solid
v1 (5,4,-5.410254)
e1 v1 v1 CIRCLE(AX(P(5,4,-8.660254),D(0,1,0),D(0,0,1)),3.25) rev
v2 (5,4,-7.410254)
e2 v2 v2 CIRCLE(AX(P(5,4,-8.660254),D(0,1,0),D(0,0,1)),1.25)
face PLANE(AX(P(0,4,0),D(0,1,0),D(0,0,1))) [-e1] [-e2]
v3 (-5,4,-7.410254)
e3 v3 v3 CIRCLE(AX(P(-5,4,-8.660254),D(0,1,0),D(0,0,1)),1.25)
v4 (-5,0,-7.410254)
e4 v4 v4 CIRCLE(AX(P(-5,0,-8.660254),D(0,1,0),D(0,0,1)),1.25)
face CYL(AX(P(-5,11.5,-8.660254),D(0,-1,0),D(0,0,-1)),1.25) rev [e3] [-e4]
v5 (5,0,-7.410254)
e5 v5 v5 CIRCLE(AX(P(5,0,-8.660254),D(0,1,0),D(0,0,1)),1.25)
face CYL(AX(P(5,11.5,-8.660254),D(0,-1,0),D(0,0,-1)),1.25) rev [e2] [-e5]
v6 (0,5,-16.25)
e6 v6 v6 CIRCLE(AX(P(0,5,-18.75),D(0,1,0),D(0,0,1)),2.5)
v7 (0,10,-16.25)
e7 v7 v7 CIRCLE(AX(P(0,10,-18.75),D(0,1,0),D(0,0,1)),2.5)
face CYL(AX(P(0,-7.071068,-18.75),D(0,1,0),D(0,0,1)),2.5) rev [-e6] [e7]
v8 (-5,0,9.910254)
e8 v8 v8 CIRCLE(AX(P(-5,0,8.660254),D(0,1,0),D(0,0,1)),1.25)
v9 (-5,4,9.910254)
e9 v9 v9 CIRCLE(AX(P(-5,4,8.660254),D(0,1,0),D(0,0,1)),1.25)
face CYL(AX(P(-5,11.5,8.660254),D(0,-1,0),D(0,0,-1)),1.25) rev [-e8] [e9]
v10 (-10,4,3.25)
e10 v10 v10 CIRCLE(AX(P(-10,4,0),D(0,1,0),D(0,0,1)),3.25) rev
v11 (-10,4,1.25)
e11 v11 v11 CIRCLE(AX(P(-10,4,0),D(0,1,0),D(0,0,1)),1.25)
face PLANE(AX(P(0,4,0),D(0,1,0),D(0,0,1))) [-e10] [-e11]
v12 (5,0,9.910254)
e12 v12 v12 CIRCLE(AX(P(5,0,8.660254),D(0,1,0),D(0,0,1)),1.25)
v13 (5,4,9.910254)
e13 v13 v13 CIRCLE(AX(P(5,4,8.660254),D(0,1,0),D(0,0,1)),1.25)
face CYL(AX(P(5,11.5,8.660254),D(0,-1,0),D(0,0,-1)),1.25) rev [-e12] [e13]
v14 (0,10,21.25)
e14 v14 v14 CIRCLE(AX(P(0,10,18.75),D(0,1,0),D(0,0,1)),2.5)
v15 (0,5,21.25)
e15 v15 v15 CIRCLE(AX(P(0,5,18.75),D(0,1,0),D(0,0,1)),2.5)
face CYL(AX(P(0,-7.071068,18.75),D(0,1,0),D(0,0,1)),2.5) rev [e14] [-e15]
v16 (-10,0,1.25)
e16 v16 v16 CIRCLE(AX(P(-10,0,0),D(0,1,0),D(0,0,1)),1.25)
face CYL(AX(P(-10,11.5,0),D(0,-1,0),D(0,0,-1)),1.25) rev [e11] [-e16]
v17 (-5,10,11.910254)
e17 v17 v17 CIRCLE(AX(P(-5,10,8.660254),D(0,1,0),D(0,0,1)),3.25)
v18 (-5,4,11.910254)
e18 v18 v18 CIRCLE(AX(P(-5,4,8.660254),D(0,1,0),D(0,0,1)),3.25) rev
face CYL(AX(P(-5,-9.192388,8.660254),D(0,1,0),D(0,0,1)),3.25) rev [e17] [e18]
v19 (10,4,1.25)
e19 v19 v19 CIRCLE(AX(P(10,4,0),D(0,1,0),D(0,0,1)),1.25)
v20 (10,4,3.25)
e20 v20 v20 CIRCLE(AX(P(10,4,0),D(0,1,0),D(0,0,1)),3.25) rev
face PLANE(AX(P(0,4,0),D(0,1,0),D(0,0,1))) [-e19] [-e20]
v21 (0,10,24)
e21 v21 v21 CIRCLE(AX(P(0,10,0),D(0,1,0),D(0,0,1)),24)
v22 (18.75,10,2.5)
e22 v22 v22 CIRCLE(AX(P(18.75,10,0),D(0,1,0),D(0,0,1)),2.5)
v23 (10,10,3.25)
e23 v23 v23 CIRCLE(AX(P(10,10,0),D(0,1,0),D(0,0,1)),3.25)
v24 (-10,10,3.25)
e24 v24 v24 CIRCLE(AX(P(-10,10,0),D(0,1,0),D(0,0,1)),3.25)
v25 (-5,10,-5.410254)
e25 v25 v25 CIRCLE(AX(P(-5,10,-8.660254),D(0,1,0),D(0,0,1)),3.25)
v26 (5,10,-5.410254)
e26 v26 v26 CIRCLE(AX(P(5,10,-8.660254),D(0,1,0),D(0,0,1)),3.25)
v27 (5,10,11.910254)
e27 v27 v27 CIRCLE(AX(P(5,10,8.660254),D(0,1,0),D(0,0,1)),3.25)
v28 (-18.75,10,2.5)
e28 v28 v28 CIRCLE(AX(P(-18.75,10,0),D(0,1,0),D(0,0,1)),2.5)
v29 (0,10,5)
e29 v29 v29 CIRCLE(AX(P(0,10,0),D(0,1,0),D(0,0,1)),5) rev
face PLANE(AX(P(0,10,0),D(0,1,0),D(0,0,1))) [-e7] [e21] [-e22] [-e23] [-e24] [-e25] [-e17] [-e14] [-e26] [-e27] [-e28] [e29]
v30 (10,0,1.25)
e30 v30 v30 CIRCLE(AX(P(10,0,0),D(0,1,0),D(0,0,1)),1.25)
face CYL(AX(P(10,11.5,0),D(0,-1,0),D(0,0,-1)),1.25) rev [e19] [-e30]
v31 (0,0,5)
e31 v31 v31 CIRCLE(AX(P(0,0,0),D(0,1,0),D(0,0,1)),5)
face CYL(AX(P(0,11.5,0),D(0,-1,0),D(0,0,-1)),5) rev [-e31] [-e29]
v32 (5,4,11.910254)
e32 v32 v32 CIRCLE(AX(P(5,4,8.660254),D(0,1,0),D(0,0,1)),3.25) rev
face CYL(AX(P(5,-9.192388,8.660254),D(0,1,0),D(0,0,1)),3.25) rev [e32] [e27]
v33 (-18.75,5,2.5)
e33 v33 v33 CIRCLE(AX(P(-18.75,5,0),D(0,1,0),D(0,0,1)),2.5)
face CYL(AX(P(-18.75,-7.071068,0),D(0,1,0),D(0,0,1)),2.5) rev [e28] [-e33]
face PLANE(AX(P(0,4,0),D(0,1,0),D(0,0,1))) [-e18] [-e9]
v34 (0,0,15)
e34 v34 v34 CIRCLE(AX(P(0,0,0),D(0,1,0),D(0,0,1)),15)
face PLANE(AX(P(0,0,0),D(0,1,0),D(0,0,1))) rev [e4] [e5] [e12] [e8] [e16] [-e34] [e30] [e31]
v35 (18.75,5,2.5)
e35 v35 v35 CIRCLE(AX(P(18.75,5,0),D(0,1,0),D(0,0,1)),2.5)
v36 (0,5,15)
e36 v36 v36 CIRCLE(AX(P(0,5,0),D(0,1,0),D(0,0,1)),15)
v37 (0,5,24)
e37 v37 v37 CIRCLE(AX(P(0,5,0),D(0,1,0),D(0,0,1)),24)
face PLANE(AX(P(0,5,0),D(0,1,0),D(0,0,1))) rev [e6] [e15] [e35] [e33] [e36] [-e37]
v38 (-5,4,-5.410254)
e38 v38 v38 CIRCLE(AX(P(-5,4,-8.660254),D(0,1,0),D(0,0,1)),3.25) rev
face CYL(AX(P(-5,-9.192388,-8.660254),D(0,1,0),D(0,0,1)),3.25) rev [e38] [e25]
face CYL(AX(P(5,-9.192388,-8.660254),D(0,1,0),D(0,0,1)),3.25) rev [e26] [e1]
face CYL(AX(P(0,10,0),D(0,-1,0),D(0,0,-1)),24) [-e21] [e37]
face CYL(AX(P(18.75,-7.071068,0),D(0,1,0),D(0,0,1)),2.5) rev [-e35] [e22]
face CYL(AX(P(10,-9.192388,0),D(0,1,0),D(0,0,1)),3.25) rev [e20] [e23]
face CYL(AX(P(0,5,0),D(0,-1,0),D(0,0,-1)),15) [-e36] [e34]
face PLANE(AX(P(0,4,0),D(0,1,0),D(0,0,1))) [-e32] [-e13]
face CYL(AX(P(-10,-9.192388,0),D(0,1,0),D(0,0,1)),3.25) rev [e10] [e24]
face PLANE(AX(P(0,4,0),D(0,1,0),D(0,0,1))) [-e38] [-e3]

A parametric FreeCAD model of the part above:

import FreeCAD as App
import Part
import Sketcher
Q = App.Units.Quantity

doc = App.newDocument("Part")
body = doc.addObject("PartDesign::Body", "Body")

# Sketch on XZ plane
sketch1 = body.newObject("Sketcher::SketchObject", "Sketch")
sketch1.AttachmentSupport = (doc.getObject("XZ_Plane"), [""])
sketch1.MapMode = "FlatFace"
sketch1.addGeometry(Part.Circle(App.Vector(0, 0, 0), App.Vector(0, 0, 1), 15), False)
sketch1.addConstraint(Sketcher.Constraint("Coincident", 0, 3, -1, 1))
sketch1.addConstraint(Sketcher.Constraint("Diameter", 0, Q("30 mm")))
pad1 = body.newObject("PartDesign::Pad", "Pad")
pad1.Profile = sketch1
pad1.Length = 5
pad1.Reversed = True

# Sketch on XZ plane
sketch2 = body.newObject("Sketcher::SketchObject", "Sketch001")
sketch2.AttachmentSupport = (doc.getObject("XZ_Plane"), [""])
sketch2.MapMode = "FlatFace"
sketch2.AttachmentOffset = App.Placement(App.Vector(0, 0, -5), App.Rotation())
sketch2.addGeometry(Part.Circle(App.Vector(0, 0, 0), App.Vector(0, 0, 1), 24), False)
sketch2.addConstraint(Sketcher.Constraint("Coincident", 0, 3, -1, 1))
sketch2.addConstraint(Sketcher.Constraint("Diameter", 0, Q("48 mm")))
pad2 = body.newObject("PartDesign::Pad", "Pad001")
pad2.Profile = sketch2
pad2.Length = 5
pad2.Reversed = True

# Sketch on XZ plane
sketch3 = body.newObject("Sketcher::SketchObject", "Sketch002")
sketch3.AttachmentSupport = (doc.getObject("XZ_Plane"), [""])
sketch3.MapMode = "FlatFace"
sketch3.addGeometry(Part.Circle(App.Vector(-5, -8.7, 0), App.Vector(0, 0, 1), 1.2), False)
sketch3.addGeometry(Part.Circle(App.Vector(5, -8.7, 0), App.Vector(0, 0, 1), 1.2), False)
sketch3.addGeometry(Part.Circle(App.Vector(10, 0, 0), App.Vector(0, 0, 1), 1.2), False)
sketch3.addGeometry(Part.Circle(App.Vector(5, 8.7, 0), App.Vector(0, 0, 1), 1.2), False)
sketch3.addGeometry(Part.Circle(App.Vector(-5, 8.7, 0), App.Vector(0, 0, 1), 1.2), False)
sketch3.addGeometry(Part.Circle(App.Vector(-10, 0, 0), App.Vector(0, 0, 1), 1.2), False)
sketch3.addGeometry(Part.Circle(App.Vector(0, 0, 0), App.Vector(0, 0, 1), 5), False)
sketch3.addConstraint(Sketcher.Constraint("Coincident", 6, 3, -1, 1))
sketch3.addConstraint(Sketcher.Constraint("Equal", 0, 1))
sketch3.addConstraint(Sketcher.Constraint("Equal", 1, 2))
sketch3.addConstraint(Sketcher.Constraint("Equal", 2, 3))
sketch3.addConstraint(Sketcher.Constraint("Equal", 3, 4))
sketch3.addConstraint(Sketcher.Constraint("Equal", 4, 5))
sketch3.addConstraint(Sketcher.Constraint("Symmetric", 0, 3, 3, 3, -1, 1))
sketch3.addConstraint(Sketcher.Constraint("Symmetric", 1, 3, 4, 3, -1, 1))
sketch3.addConstraint(Sketcher.Constraint("Symmetric", 2, 3, 5, 3, -1, 1))
sketch3.addConstraint(Sketcher.Constraint("Symmetric", 0, 3, 1, 3, -2))
sketch3.addConstraint(Sketcher.Constraint("PointOnObject", 2, 3, -1))
sketch3.addConstraint(Sketcher.Constraint("Diameter", 6, Q("10 mm")))
sketch3.addConstraint(Sketcher.Constraint("Diameter", 0, Q("2.5 mm")))
sketch3.addConstraint(Sketcher.Constraint("DistanceX", 0, 3, -1, 1, Q("5 mm")))
sketch3.addConstraint(Sketcher.Constraint("DistanceX", -1, 1, 2, 3, Q("10 mm")))
sketch3.addConstraint(Sketcher.Constraint("DistanceY", 1, 3, 3, 3, Q("17.320508 mm")))
pocket1 = body.newObject("PartDesign::Pocket", "Pocket")
pocket1.Profile = sketch3
pocket1.Length = 11.5

# Sketch on XZ plane
sketch4 = body.newObject("Sketcher::SketchObject", "Sketch003")
sketch4.AttachmentSupport = (doc.getObject("XZ_Plane"), [""])
sketch4.MapMode = "FlatFace"
sketch4.AttachmentOffset = App.Placement(App.Vector(0, 0, -10), App.Rotation())
sketch4.addGeometry(Part.Circle(App.Vector(10, 0, 0), App.Vector(0, 0, 1), 3.2), False)
sketch4.addGeometry(Part.Circle(App.Vector(5, -8.7, 0), App.Vector(0, 0, 1), 3.2), False)
sketch4.addGeometry(Part.Circle(App.Vector(5, 8.7, 0), App.Vector(0, 0, 1), 3.2), False)
sketch4.addGeometry(Part.Circle(App.Vector(-5, 8.7, 0), App.Vector(0, 0, 1), 3.2), False)
sketch4.addGeometry(Part.Circle(App.Vector(-10, 0, 0), App.Vector(0, 0, 1), 3.2), False)
sketch4.addGeometry(Part.Circle(App.Vector(-5, -8.7, 0), App.Vector(0, 0, 1), 3.2), False)
sketch4.addConstraint(Sketcher.Constraint("Equal", 0, 1))
sketch4.addConstraint(Sketcher.Constraint("Equal", 1, 2))
sketch4.addConstraint(Sketcher.Constraint("Equal", 2, 3))
sketch4.addConstraint(Sketcher.Constraint("Equal", 3, 4))
sketch4.addConstraint(Sketcher.Constraint("Equal", 4, 5))
sketch4.addConstraint(Sketcher.Constraint("Symmetric", 1, 3, 3, 3, -1, 1))
sketch4.addConstraint(Sketcher.Constraint("Symmetric", 0, 3, 4, 3, -1, 1))
sketch4.addConstraint(Sketcher.Constraint("Symmetric", 2, 3, 5, 3, -1, 1))
sketch4.addConstraint(Sketcher.Constraint("Symmetric", 2, 3, 3, 3, -2))
sketch4.addConstraint(Sketcher.Constraint("PointOnObject", 0, 3, -1))
sketch4.addConstraint(Sketcher.Constraint("Diameter", 0, Q("6.5 mm")))
sketch4.addConstraint(Sketcher.Constraint("DistanceX", -1, 1, 0, 3, Q("10 mm")))
sketch4.addConstraint(Sketcher.Constraint("DistanceX", -1, 1, 1, 3, Q("5 mm")))
sketch4.addConstraint(Sketcher.Constraint("DistanceY", 1, 3, 2, 3, Q("17.320508 mm")))
pocket2 = body.newObject("PartDesign::Pocket", "Pocket001")
pocket2.Profile = sketch4
pocket2.Length = 6
pocket2.Reversed = True

# Sketch on XZ plane
sketch5 = body.newObject("Sketcher::SketchObject", "Sketch004")
sketch5.AttachmentSupport = (doc.getObject("XZ_Plane"), [""])
sketch5.MapMode = "FlatFace"
sketch5.AttachmentOffset = App.Placement(App.Vector(0, 0, -10), App.Rotation())
sketch5.addGeometry(Part.Circle(App.Vector(0, -18.8, 0), App.Vector(0, 0, 1), 2.5), False)
sketch5.addGeometry(Part.Circle(App.Vector(18.8, 0, 0), App.Vector(0, 0, 1), 2.5), False)
sketch5.addGeometry(Part.Circle(App.Vector(0, 18.8, 0), App.Vector(0, 0, 1), 2.5), False)
sketch5.addGeometry(Part.Circle(App.Vector(-18.8, 0, 0), App.Vector(0, 0, 1), 2.5), False)
sketch5.addConstraint(Sketcher.Constraint("Equal", 0, 1))
sketch5.addConstraint(Sketcher.Constraint("Equal", 1, 2))
sketch5.addConstraint(Sketcher.Constraint("Equal", 2, 3))
sketch5.addConstraint(Sketcher.Constraint("Symmetric", 0, 3, 2, 3, -1, 1))
sketch5.addConstraint(Sketcher.Constraint("Symmetric", 1, 3, 3, 3, -1, 1))
sketch5.addConstraint(Sketcher.Constraint("PointOnObject", 0, 3, -2))
sketch5.addConstraint(Sketcher.Constraint("PointOnObject", 1, 3, -1))
sketch5.addConstraint(Sketcher.Constraint("Diameter", 0, Q("5 mm")))
sketch5.addConstraint(Sketcher.Constraint("DistanceY", 0, 3, 2, 3, Q("37.5 mm")))
sketch5.addConstraint(Sketcher.Constraint("DistanceX", 3, 3, 1, 3, Q("37.5 mm")))
pocket3 = body.newObject("PartDesign::Pocket", "Pocket002")
pocket3.Profile = sketch5
pocket3.Length = 6.5
pocket3.Reversed = True

doc.recompute()
